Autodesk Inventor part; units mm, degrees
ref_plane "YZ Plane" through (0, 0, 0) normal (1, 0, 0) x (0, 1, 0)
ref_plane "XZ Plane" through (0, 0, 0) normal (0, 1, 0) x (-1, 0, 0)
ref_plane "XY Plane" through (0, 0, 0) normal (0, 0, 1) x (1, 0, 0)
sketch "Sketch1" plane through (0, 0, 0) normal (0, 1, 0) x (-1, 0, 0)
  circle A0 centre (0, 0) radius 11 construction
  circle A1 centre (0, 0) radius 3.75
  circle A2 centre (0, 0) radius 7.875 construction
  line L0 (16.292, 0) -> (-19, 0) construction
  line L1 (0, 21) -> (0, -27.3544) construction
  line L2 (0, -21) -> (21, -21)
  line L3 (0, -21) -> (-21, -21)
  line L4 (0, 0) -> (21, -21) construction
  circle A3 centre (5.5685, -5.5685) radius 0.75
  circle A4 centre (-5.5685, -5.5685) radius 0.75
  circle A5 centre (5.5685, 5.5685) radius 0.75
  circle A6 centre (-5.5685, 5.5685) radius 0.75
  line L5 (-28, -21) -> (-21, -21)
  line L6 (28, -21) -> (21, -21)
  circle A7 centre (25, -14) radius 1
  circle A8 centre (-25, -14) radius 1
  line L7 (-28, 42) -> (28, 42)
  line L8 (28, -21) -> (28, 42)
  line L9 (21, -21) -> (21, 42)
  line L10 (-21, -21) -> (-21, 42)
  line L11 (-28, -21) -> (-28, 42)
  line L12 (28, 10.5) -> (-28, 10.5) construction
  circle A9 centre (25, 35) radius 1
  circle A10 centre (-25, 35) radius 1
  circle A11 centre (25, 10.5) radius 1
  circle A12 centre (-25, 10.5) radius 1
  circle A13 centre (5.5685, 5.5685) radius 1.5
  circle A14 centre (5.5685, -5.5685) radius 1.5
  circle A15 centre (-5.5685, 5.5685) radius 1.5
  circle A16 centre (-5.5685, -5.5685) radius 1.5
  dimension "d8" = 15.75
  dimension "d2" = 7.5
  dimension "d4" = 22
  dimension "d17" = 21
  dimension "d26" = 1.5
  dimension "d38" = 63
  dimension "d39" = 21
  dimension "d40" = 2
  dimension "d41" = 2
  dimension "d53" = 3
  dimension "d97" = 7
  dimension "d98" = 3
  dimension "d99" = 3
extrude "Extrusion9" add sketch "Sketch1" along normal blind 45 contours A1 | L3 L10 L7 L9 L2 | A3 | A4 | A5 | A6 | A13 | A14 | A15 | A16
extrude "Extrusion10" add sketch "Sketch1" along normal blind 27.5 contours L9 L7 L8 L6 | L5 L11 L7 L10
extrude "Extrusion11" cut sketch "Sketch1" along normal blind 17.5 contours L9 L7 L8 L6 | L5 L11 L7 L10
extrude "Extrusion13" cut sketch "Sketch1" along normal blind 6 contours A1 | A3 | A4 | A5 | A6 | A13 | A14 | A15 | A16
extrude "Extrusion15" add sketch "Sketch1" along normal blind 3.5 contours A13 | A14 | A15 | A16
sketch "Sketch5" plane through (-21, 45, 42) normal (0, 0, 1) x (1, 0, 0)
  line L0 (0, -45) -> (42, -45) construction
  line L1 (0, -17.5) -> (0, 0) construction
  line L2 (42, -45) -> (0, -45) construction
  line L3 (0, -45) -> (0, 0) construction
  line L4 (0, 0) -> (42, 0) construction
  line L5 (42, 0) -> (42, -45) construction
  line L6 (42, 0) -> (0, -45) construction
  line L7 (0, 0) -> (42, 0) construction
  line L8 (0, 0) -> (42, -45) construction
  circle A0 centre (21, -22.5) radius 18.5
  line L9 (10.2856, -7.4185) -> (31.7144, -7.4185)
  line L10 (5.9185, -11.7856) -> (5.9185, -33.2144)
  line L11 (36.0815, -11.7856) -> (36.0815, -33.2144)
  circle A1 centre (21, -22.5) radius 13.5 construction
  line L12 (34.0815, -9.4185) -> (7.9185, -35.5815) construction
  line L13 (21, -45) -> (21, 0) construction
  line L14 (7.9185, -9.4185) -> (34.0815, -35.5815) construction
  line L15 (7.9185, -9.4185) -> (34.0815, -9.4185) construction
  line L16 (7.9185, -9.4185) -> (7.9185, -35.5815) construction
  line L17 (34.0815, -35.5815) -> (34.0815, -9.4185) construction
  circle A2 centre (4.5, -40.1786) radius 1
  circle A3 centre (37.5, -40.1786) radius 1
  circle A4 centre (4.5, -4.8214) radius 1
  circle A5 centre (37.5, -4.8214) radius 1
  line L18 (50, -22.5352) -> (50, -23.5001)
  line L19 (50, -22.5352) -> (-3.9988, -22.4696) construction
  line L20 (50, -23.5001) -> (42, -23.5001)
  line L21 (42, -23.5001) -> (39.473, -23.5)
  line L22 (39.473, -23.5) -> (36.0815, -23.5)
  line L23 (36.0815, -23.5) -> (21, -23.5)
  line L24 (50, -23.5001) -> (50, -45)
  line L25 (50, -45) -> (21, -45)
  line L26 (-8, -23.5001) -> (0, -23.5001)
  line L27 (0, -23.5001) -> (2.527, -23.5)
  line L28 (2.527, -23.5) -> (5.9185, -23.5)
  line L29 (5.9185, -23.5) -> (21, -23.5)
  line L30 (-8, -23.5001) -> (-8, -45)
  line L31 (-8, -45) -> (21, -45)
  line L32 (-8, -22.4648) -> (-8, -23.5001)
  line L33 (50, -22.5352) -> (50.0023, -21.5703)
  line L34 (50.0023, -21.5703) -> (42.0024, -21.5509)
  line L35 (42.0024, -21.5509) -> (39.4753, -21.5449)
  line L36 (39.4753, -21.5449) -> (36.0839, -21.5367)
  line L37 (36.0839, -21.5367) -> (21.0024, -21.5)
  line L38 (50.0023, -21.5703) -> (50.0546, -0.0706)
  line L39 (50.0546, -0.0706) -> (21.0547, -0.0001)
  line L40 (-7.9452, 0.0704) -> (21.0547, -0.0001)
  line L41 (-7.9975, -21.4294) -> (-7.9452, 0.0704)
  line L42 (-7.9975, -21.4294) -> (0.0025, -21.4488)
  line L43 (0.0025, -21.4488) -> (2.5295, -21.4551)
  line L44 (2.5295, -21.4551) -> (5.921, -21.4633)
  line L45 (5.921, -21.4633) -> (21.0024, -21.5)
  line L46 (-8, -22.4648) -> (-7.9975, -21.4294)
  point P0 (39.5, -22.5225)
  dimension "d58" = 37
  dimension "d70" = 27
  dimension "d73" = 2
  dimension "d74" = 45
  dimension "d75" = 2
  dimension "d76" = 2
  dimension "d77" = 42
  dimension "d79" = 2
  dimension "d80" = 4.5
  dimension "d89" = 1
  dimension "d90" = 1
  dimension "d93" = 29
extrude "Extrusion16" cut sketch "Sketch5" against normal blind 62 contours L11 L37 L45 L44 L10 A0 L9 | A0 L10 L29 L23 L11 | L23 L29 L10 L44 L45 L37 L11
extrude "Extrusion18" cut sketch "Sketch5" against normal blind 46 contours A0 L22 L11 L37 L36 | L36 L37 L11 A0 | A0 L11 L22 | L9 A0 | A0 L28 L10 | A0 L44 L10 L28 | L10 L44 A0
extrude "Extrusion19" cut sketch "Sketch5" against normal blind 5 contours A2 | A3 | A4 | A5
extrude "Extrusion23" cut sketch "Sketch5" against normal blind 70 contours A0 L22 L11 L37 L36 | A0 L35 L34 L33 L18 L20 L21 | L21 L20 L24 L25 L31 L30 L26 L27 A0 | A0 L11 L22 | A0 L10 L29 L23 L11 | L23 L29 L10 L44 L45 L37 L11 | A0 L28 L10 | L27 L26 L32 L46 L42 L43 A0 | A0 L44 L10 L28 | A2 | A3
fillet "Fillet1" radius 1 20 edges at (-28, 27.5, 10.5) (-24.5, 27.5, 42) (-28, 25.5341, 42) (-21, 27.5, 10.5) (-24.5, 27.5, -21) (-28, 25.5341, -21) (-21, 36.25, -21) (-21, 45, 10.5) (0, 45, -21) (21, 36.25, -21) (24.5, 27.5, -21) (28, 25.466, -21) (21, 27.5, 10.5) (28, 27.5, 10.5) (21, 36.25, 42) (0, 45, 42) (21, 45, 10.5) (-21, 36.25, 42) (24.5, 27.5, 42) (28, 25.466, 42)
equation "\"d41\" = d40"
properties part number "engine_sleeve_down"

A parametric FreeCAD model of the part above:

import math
import FreeCAD as App
import Part
import Sketcher

V = App.Vector
Q = App.Units.Quantity


def edges_at(feature, points):
    """Names of the edges that pass closest to the given points."""
    edges = feature.Shape.Edges
    near = lambda p: min(range(len(edges)), key=lambda i: edges[i].distToShape(Part.Vertex(*p))[0])
    return sorted({f"Edge{near(p) + 1}" for p in points})


def add_polygon(sketch, points):
    """Adds a closed chain of lines whose ends are joined by coincident constraints."""
    first, n = sketch.GeometryCount, len(points)
    for a, b in zip(points, points[1:] + points[:1]):
        sketch.addGeometry(Part.LineSegment(App.Vector(*a, 0), App.Vector(*b, 0)), False)
    for i in range(n):
        sketch.addConstraint(Sketcher.Constraint("Coincident", first + i, 2, first + (i + 1) % n, 1))

doc = App.newDocument("Part")
body = doc.addObject("PartDesign::Body", "Body")

sketch1 = body.newObject("Sketcher::SketchObject", "Sketch")
sketch1.AttachmentSupport = (doc.getObject("XZ_Plane"), [""])
sketch1.MapMode = "FlatFace"
add_polygon(sketch1, [(21, -21), (-21, -21), (-21, 42), (21, 42)])
sketch1.addConstraint([
    Sketcher.Constraint("Horizontal", 0),
    Sketcher.Constraint("Vertical", 1),
    Sketcher.Constraint("Horizontal", 2),
    Sketcher.Constraint("Vertical", 3),
    Sketcher.Constraint("DistanceY", 1, 1, 1, 2, 63.0),
    Sketcher.Constraint("DistanceX", 0, 2, -1, 1, 21.0),
    Sketcher.Constraint("DistanceY", 0, 2, -1, 1, 21.0),
    Sketcher.Constraint("DistanceX", -1, 1, 2, 2, 21.0),
])
pad1 = body.newObject("PartDesign::Pad", "Pad")
pad1.Profile = sketch1
pad1.Length = 45
pad1.Reversed = True

sketch2 = body.newObject("Sketcher::SketchObject", "Sketch001")
sketch2.AttachmentSupport = (doc.getObject("XZ_Plane"), [""])
sketch2.MapMode = "FlatFace"
add_polygon(sketch2, [(-21, 42), (-21, -21), (-28, -21), (-28, 42)])
sketch2.addGeometry(Part.Circle(V(-25, -14, 0), V(0, 0, 1), 1), False)
sketch2.addGeometry(Part.Circle(V(-25, 10.5, 0), V(0, 0, 1), 1), False)
sketch2.addGeometry(Part.Circle(V(-25, 35, 0), V(0, 0, 1), 1), False)
add_polygon(sketch2, [(28, -21), (21, -21), (21, 42), (28, 42)])
sketch2.addGeometry(Part.Circle(V(25, -14, 0), V(0, 0, 1), 1), False)
sketch2.addGeometry(Part.Circle(V(25, 10.5, 0), V(0, 0, 1), 1), False)
sketch2.addGeometry(Part.Circle(V(25, 35, 0), V(0, 0, 1), 1), False)
sketch2.addConstraint([
    Sketcher.Constraint("Vertical", 0),
    Sketcher.Constraint("Horizontal", 1),
    Sketcher.Constraint("Vertical", 2),
    Sketcher.Constraint("Horizontal", 3),
    Sketcher.Constraint("Horizontal", 7),
    Sketcher.Constraint("Vertical", 8),
    Sketcher.Constraint("Horizontal", 9),
    Sketcher.Constraint("Vertical", 10),
    Sketcher.Constraint("Equal", 4, 5),
    Sketcher.Constraint("Equal", 5, 6),
    Sketcher.Constraint("Equal", 6, 11),
    Sketcher.Constraint("Equal", 11, 12),
    Sketcher.Constraint("Equal", 12, 13),
    Sketcher.Constraint("Symmetric", 4, 3, 11, 3, -2),
    Sketcher.Constraint("Symmetric", 5, 3, 12, 3, -2),
    Sketcher.Constraint("Symmetric", 6, 3, 13, 3, -2),
    Sketcher.Constraint("Symmetric", 0, 2, 7, 2, -2),
    Sketcher.Constraint("Symmetric", 2, 2, 9, 2, -2),
    Sketcher.Constraint("Vertical", 4, 3, 5, 3),
    Sketcher.Constraint("Vertical", 5, 3, 6, 3),
    Sketcher.Constraint("Diameter", 4, 2.0),
    Sketcher.Constraint("DistanceX", 1, 2, 1, 1, 7.0),
    Sketcher.Constraint("DistanceY", 0, 2, 0, 1, 63.0),
    Sketcher.Constraint("DistanceX", 0, 2, -1, 1, 21.0),
    Sketcher.Constraint("DistanceY", 0, 2, -1, 1, 21.0),
    Sketcher.Constraint("DistanceY", 0, 2, 4, 3, 7.0),
    Sketcher.Constraint("DistanceX", 1, 2, 4, 3, 3.0),
    Sketcher.Constraint("DistanceY", 6, 3, 2, 2, 7.0),
    Sketcher.Constraint("DistanceY", -1, 1, 5, 3, 10.5),
])
pad2 = body.newObject("PartDesign::Pad", "Pad001")
pad2.Profile = sketch2
pad2.Length = 27.5
pad2.Reversed = True

sketch3 = body.newObject("Sketcher::SketchObject", "Sketch002")
sketch3.AttachmentSupport = (doc.getObject("XZ_Plane"), [""])
sketch3.MapMode = "FlatFace"
add_polygon(sketch3, [(-21, 42), (-21, -21), (-28, -21), (-28, 42)])
sketch3.addGeometry(Part.Circle(V(-25, -14, 0), V(0, 0, 1), 1), False)
sketch3.addGeometry(Part.Circle(V(-25, 10.5, 0), V(0, 0, 1), 1), False)
sketch3.addGeometry(Part.Circle(V(-25, 35, 0), V(0, 0, 1), 1), False)
add_polygon(sketch3, [(28, -21), (21, -21), (21, 42), (28, 42)])
sketch3.addGeometry(Part.Circle(V(25, -14, 0), V(0, 0, 1), 1), False)
sketch3.addGeometry(Part.Circle(V(25, 10.5, 0), V(0, 0, 1), 1), False)
sketch3.addGeometry(Part.Circle(V(25, 35, 0), V(0, 0, 1), 1), False)
sketch3.addConstraint([
    Sketcher.Constraint("Vertical", 0),
    Sketcher.Constraint("Horizontal", 1),
    Sketcher.Constraint("Vertical", 2),
    Sketcher.Constraint("Horizontal", 3),
    Sketcher.Constraint("Horizontal", 7),
    Sketcher.Constraint("Vertical", 8),
    Sketcher.Constraint("Horizontal", 9),
    Sketcher.Constraint("Vertical", 10),
    Sketcher.Constraint("Equal", 4, 5),
    Sketcher.Constraint("Equal", 5, 6),
    Sketcher.Constraint("Equal", 6, 11),
    Sketcher.Constraint("Equal", 11, 12),
    Sketcher.Constraint("Equal", 12, 13),
    Sketcher.Constraint("Symmetric", 4, 3, 11, 3, -2),
    Sketcher.Constraint("Symmetric", 5, 3, 12, 3, -2),
    Sketcher.Constraint("Symmetric", 6, 3, 13, 3, -2),
    Sketcher.Constraint("Symmetric", 0, 2, 7, 2, -2),
    Sketcher.Constraint("Symmetric", 2, 2, 9, 2, -2),
    Sketcher.Constraint("Vertical", 4, 3, 5, 3),
    Sketcher.Constraint("Vertical", 5, 3, 6, 3),
    Sketcher.Constraint("Diameter", 4, 2.0),
    Sketcher.Constraint("DistanceX", 1, 2, 1, 1, 7.0),
    Sketcher.Constraint("DistanceY", 0, 2, 0, 1, 63.0),
    Sketcher.Constraint("DistanceX", 0, 2, -1, 1, 21.0),
    Sketcher.Constraint("DistanceY", 0, 2, -1, 1, 21.0),
    Sketcher.Constraint("DistanceY", 0, 2, 4, 3, 7.0),
    Sketcher.Constraint("DistanceX", 1, 2, 4, 3, 3.0),
    Sketcher.Constraint("DistanceY", 6, 3, 2, 2, 7.0),
    Sketcher.Constraint("DistanceY", -1, 1, 5, 3, 10.5),
])
pocket1 = body.newObject("PartDesign::Pocket", "Pocket")
pocket1.Profile = sketch3
pocket1.Length = 17.5

sketch4 = body.newObject("Sketcher::SketchObject", "Sketch003")
sketch4.AttachmentSupport = (doc.getObject("XZ_Plane"), [""])
sketch4.MapMode = "FlatFace"
sketch4.addGeometry([
    Part.Circle(V(0, 0, 0), V(0, 0, 1), 3.8),
    Part.Circle(V(-5.6, -5.6, 0), V(0, 0, 1), 1.5),
    Part.Circle(V(5.6, -5.6, 0), V(0, 0, 1), 1.5),
    Part.Circle(V(-5.6, 5.6, 0), V(0, 0, 1), 1.5),
    Part.Circle(V(5.6, 5.6, 0), V(0, 0, 1), 1.5),
], False)
sketch4.addConstraint([
    Sketcher.Constraint("Coincident", 0, 3, -1, 1),
    Sketcher.Constraint("Equal", 1, 2),
    Sketcher.Constraint("Equal", 2, 3),
    Sketcher.Constraint("Equal", 3, 4),
    Sketcher.Constraint("Symmetric", 2, 3, 3, 3, -1, 1),
    Sketcher.Constraint("Symmetric", 1, 3, 4, 3, -1, 1),
    Sketcher.Constraint("Symmetric", 1, 3, 2, 3, -2),
    Sketcher.Constraint("Diameter", 1, 3.0),
    Sketcher.Constraint("Diameter", 0, 7.5),
    Sketcher.Constraint("DistanceX", 1, 3, 2, 3, 11.137),
    Sketcher.Constraint("DistanceY", 1, 3, 3, 3, 11.137),
])
pocket2 = body.newObject("PartDesign::Pocket", "Pocket001")
pocket2.Profile = sketch4
pocket2.Length = 6

sketch5 = body.newObject("Sketcher::SketchObject", "Sketch004")
sketch5.AttachmentSupport = (doc.getObject("XZ_Plane"), [""])
sketch5.MapMode = "FlatFace"
sketch5.addGeometry([
    Part.Circle(V(-5.6, 5.6, 0), V(0, 0, 1), 1.5),
    Part.Circle(V(-5.6, 5.6, 0), V(0, 0, 1), 0.8),
    Part.Circle(V(-5.6, -5.6, 0), V(0, 0, 1), 1.5),
    Part.Circle(V(-5.6, -5.6, 0), V(0, 0, 1), 0.8),
    Part.Circle(V(5.6, 5.6, 0), V(0, 0, 1), 1.5),
    Part.Circle(V(5.6, 5.6, 0), V(0, 0, 1), 0.8),
    Part.Circle(V(5.6, -5.6, 0), V(0, 0, 1), 1.5),
    Part.Circle(V(5.6, -5.6, 0), V(0, 0, 1), 0.8),
], False)
sketch5.addConstraint([
    Sketcher.Constraint("Coincident", 1, 3, 0, 3),
    Sketcher.Constraint("Coincident", 3, 3, 2, 3),
    Sketcher.Constraint("Coincident", 5, 3, 4, 3),
    Sketcher.Constraint("Coincident", 7, 3, 6, 3),
    Sketcher.Constraint("Equal", 0, 2),
    Sketcher.Constraint("Equal", 1, 3),
    Sketcher.Constraint("Equal", 2, 4),
    Sketcher.Constraint("Equal", 3, 5),
    Sketcher.Constraint("Equal", 4, 6),
    Sketcher.Constraint("Equal", 5, 7),
    Sketcher.Constraint("Symmetric", 2, 3, 4, 3, -1, 1),
    Sketcher.Constraint("Symmetric", 0, 3, 6, 3, -1, 1),
    Sketcher.Constraint("Symmetric", 0, 3, 4, 3, -2),
    Sketcher.Constraint("Diameter", 0, 3.0),
    Sketcher.Constraint("Diameter", 1, 1.5),
    Sketcher.Constraint("DistanceY", 2, 3, 0, 3, 11.137),
    Sketcher.Constraint("DistanceX", 0, 3, 4, 3, 11.137),
])
pad3 = body.newObject("PartDesign::Pad", "Pad002")
pad3.Profile = sketch5
pad3.Length = 3.5
pad3.Reversed = True

sketch6 = body.newObject("Sketcher::SketchObject", "Sketch005")
sketch6.AttachmentSupport = (doc.getObject("XY_Plane"), [""])
sketch6.MapMode = "FlatFace"
sketch6.AttachmentOffset = App.Placement(V(0, 0, 42), App.Rotation())
sketch6.addGeometry([
    Part.ArcOfCircle(Part.Circle(V(0, 22, 0), V(0, 0, 1), 18), math.radians(35.39), math.radians(54.61)),
    Part.LineSegment(V(11, 38, 0), V(-11, 38, 0)),
    Part.ArcOfCircle(Part.Circle(V(0, 22, 0), V(0, 0, 1), 18), math.radians(125.39), math.radians(144.61)),
    Part.LineSegment(V(-15, 33, 0), V(-15, 12, 0)),
    Part.ArcOfCircle(Part.Circle(V(0, 22, 0), V(0, 0, 1), 18), math.radians(-145), math.radians(-35)),
    Part.LineSegment(V(15, 12, 0), V(15, 33, 0)),
], False)
sketch6.addConstraint([
    Sketcher.Constraint("Coincident", 0, 2, 1, 1),
    Sketcher.Constraint("Coincident", 1, 2, 2, 1),
    Sketcher.Constraint("Coincident", 2, 2, 3, 1),
    Sketcher.Constraint("Coincident", 3, 2, 4, 1),
    Sketcher.Constraint("Coincident", 4, 2, 5, 1),
    Sketcher.Constraint("Coincident", 5, 2, 0, 1),
    Sketcher.Constraint("Horizontal", 1),
    Sketcher.Constraint("Vertical", 3),
    Sketcher.Constraint("Vertical", 5),
    Sketcher.Constraint("Coincident", 2, 3, 0, 3),
    Sketcher.Constraint("Coincident", 4, 3, 0, 3),
    Sketcher.Constraint("Equal", 0, 2),
    Sketcher.Constraint("Equal", 2, 4),
    Sketcher.Constraint("Symmetric", 3, 2, 4, 2, -2),
    Sketcher.Constraint("Equal", 1, 3),
    Sketcher.Constraint("Radius", 0, 18.5),
    Sketcher.Constraint("DistanceY", -1, 1, 0, 3, 22.5),
    Sketcher.Constraint("DistanceX", 1, 2, 1, 1, 21.4288),
])
pocket3 = body.newObject("PartDesign::Pocket", "Pocket002")
pocket3.Profile = sketch6
pocket3.Length = 62

sketch7 = body.newObject("Sketcher::SketchObject", "Sketch006")
sketch7.AttachmentSupport = (doc.getObject("XY_Plane"), [""])
sketch7.MapMode = "FlatFace"
sketch7.AttachmentOffset = App.Placement(V(0, 0, 42), App.Rotation())
sketch7.addGeometry([
    Part.LineSegment(V(15, 33, 0), V(15, 12, 0)),
    Part.ArcOfCircle(Part.Circle(V(0, 22, 0), V(0, 0, 1), 18), math.radians(-35), math.radians(35)),
    Part.LineSegment(V(-11, 38, 0), V(11, 38, 0)),
    Part.ArcOfCircle(Part.Circle(V(0, 22, 0), V(0, 0, 1), 18), math.radians(55), math.radians(125)),
    Part.LineSegment(V(-15, 12, 0), V(-15, 33, 0)),
    Part.ArcOfCircle(Part.Circle(V(0, 22, 0), V(0, 0, 1), 18), math.radians(145), math.radians(215)),
], False)
sketch7.addConstraint([
    Sketcher.Constraint("Coincident", 0, 1, 1, 2),
    Sketcher.Constraint("Coincident", 1, 1, 0, 2),
    Sketcher.Constraint("Coincident", 2, 1, 3, 2),
    Sketcher.Constraint("Coincident", 3, 1, 2, 2),
    Sketcher.Constraint("Coincident", 4, 1, 5, 2),
    Sketcher.Constraint("Coincident", 5, 1, 4, 2),
    Sketcher.Constraint("Vertical", 0),
    Sketcher.Constraint("Horizontal", 2),
    Sketcher.Constraint("Vertical", 4),
    Sketcher.Constraint("Coincident", 3, 3, 1, 3),
    Sketcher.Constraint("Coincident", 5, 3, 1, 3),
    Sketcher.Constraint("Equal", 1, 3),
    Sketcher.Constraint("Equal", 3, 5),
    Sketcher.Constraint("Symmetric", 1, 1, 4, 1, -2),
    Sketcher.Constraint("Equal", 2, 0),
    Sketcher.Constraint("Radius", 1, 18.5),
    Sketcher.Constraint("DistanceY", -1, 1, 1, 3, 22.5),
    Sketcher.Constraint("DistanceX", 2, 1, 2, 2, 21.4288),
])
pocket4 = body.newObject("PartDesign::Pocket", "Pocket003")
pocket4.Profile = sketch7
pocket4.Length = 46

sketch8 = body.newObject("Sketcher::SketchObject", "Sketch007")
sketch8.AttachmentSupport = (doc.getObject("XY_Plane"), [""])
sketch8.MapMode = "FlatFace"
sketch8.AttachmentOffset = App.Placement(V(0, 0, 42), App.Rotation())
sketch8.addGeometry([
    Part.Circle(V(-16.5, 4.8, 0), V(0, 0, 1), 1),
    Part.Circle(V(16.5, 4.8, 0), V(0, 0, 1), 1),
    Part.Circle(V(-16.5, 40.2, 0), V(0, 0, 1), 1),
    Part.Circle(V(16.5, 40.2, 0), V(0, 0, 1), 1),
], False)
sketch8.addConstraint([
    Sketcher.Constraint("Equal", 0, 1),
    Sketcher.Constraint("Equal", 1, 2),
    Sketcher.Constraint("Equal", 2, 3),
    Sketcher.Constraint("Symmetric", 0, 3, 1, 3, -2),
    Sketcher.Constraint("Symmetric", 2, 3, 3, 3, -2),
    Sketcher.Constraint("Vertical", 0, 3, 2, 3),
    Sketcher.Constraint("Diameter", 0, 2.0),
    Sketcher.Constraint("DistanceX", 0, 3, 1, 3, 33.0),
    Sketcher.Constraint("DistanceY", -1, 1, 0, 3, 4.8214),
    Sketcher.Constraint("DistanceY", -1, 1, 2, 3, 40.1786),
])
pocket5 = body.newObject("PartDesign::Pocket", "Pocket004")
pocket5.Profile = sketch8
pocket5.Length = 5

sketch9 = body.newObject("Sketcher::SketchObject", "Sketch008")
sketch9.AttachmentSupport = (doc.getObject("XY_Plane"), [""])
sketch9.MapMode = "FlatFace"
sketch9.AttachmentOffset = App.Placement(V(0, 0, 42), App.Rotation())
add_polygon(sketch9, [(15.1, 23.5), (0, 23.5), (-15.1, 23.5), (-18.5, 23.5), (-21, 23.6), (-29, 23.6), (-29, 22.5), (-29, 0), (29, 0), (29, 22.5), (29, 23.4), (21, 23.4), (18.5, 23.5)])
sketch9.addConstraint([
    Sketcher.Constraint("Vertical", 6),
    Sketcher.Constraint("Horizontal", 7),
    Sketcher.Constraint("Vertical", 8),
    Sketcher.Constraint("Symmetric", 6, 2, 7, 2, -1, 1),
    Sketcher.Constraint("Parallel", 0, 1),
    Sketcher.Constraint("Parallel", 1, 2),
    Sketcher.Constraint("Parallel", 2, 3),
    Sketcher.Constraint("Parallel", 3, 4),
    Sketcher.Constraint("Perpendicular", 4, 5),
    Sketcher.Constraint("Parallel", 5, 9),
    Sketcher.Constraint("Perpendicular", 9, 10),
    Sketcher.Constraint("Parallel", 10, 11),
    Sketcher.Constraint("Parallel", 11, 12),
    Sketcher.Constraint("Equal", 0, 1),
    Sketcher.Constraint("Equal", 4, 10),
    Sketcher.Constraint("Equal", 3, 11),
    Sketcher.Constraint("Equal", 2, 12),
    Sketcher.Constraint("DistanceX", 5, 2, -1, 1, 29.0),
    Sketcher.Constraint("Distance", 4, 8.0),
    Sketcher.Constraint("DistanceY", -1, 1, 0, 2, 23.5),
    Sketcher.Constraint("Angle", 0, Q("179.8606 deg")),
    Sketcher.Constraint("DistanceY", 8, 2, 2, 2, 1.08),
    Sketcher.Constraint("Distance", 3, 2.527),
    Sketcher.Constraint("DistanceY", 6, 2, 6, 1, 22.5352),
    Sketcher.Constraint("DistanceX", 1, 2, -1, 1, 15.079),
])
pocket6 = body.newObject("PartDesign::Pocket", "Pocket005")
pocket6.Profile = sketch9
pocket6.Length = 70
doc.recompute()

fillet = body.newObject("PartDesign::Fillet", "Fillet")
fillet.Base = (pocket6, edges_at(pocket6, [
    (-28, 27.5, 10.5),
    (-24.5, 27.5, 42),
    (-28, 25.534, 42),
    (-21, 27.5, 10.5),
    (-24.5, 27.5, -21),
    (-28, 25.534, -21),
    (-21, 36.25, -21),
    (-21, 45, 10.5),
    (0, 45, -21),
    (21, 36.25, -21),
    (24.5, 27.5, -21),
    (28, 25.466, -21),
    (21, 27.5, 10.5),
    (28, 27.5, 10.5),
    (21, 36.25, 42),
    (0, 45, 42),
    (21, 45, 10.5),
    (-21, 36.25, 42),
    (24.5, 27.5, 42),
    (28, 25.466, 42),
]))
fillet.Radius = 1

doc.recompute()
